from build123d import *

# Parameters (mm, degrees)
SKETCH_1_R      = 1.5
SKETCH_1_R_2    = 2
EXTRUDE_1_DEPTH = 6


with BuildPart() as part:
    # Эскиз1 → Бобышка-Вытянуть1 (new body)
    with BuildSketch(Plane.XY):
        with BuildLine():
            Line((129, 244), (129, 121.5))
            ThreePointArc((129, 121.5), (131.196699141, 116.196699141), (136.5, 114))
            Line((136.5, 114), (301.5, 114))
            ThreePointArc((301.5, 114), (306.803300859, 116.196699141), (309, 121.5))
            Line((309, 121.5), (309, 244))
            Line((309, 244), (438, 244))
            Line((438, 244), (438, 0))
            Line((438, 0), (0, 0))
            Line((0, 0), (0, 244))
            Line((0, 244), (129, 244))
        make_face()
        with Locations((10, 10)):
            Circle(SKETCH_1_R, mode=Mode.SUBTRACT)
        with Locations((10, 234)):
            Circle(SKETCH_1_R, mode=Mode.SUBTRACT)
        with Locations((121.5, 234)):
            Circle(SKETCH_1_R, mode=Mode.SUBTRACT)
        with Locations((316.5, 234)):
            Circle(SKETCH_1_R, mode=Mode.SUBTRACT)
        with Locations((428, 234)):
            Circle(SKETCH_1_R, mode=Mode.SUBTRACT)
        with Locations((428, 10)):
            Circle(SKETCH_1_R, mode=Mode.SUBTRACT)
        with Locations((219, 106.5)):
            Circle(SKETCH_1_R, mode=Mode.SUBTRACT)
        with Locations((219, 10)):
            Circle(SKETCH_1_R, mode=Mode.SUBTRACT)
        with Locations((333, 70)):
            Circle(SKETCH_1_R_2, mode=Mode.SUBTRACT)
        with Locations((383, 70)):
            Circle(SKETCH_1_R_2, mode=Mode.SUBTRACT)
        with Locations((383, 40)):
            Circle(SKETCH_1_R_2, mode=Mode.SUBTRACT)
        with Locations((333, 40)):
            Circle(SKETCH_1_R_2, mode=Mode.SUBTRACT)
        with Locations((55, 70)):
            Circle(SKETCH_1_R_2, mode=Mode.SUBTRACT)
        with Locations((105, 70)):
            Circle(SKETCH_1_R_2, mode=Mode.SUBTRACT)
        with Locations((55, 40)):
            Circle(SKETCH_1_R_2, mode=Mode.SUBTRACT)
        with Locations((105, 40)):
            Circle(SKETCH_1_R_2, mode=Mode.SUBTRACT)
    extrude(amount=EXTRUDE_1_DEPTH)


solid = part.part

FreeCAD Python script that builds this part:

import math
import FreeCAD as App
import Part
import Sketcher
from FreeCAD import Vector

doc = App.newDocument("Part")
body = doc.addObject("PartDesign::Body", "Body")

# Sketch on XY plane
sketch1 = body.newObject("Sketcher::SketchObject", "Sketch")
sketch1.AttachmentSupport = (doc.getObject("XY_Plane"), [""])
sketch1.MapMode = "FlatFace"
sketch1.addGeometry(Part.LineSegment(Vector(129, 121.5, 0), Vector(129, 244, 0)), False)
sketch1.addGeometry(Part.LineSegment(Vector(129, 244, 0), Vector(0, 244, 0)), False)
sketch1.addGeometry(Part.LineSegment(Vector(0, 244, 0), Vector(0, 0, 0)), False)
sketch1.addGeometry(Part.LineSegment(Vector(0, 0, 0), Vector(438, 0, 0)), False)
sketch1.addGeometry(Part.LineSegment(Vector(438, 0, 0), Vector(438, 244, 0)), False)
sketch1.addGeometry(Part.LineSegment(Vector(438, 244, 0), Vector(309, 244, 0)), False)
sketch1.addGeometry(Part.LineSegment(Vector(309, 244, 0), Vector(309, 121.5, 0)), False)
sketch1.addGeometry(Part.ArcOfCircle(Part.Circle(Vector(301.5, 121.5, 0), Vector(0, 0, 1), 7.5), math.radians(-90), math.radians(0)), False)
sketch1.addGeometry(Part.LineSegment(Vector(301.5, 114, 0), Vector(136.5, 114, 0)), False)
sketch1.addGeometry(Part.ArcOfCircle(Part.Circle(Vector(136.5, 121.5, 0), Vector(0, 0, 1), 7.5), math.radians(180), math.radians(270)), False)
sketch1.addGeometry(Part.Circle(Vector(428, 10, 0), Vector(0, 0, 1), 1.5), False)
sketch1.addGeometry(Part.Circle(Vector(383, 40, 0), Vector(0, 0, 1), 2), False)
sketch1.addGeometry(Part.Circle(Vector(333, 40, 0), Vector(0, 0, 1), 2), False)
sketch1.addGeometry(Part.Circle(Vector(383, 70, 0), Vector(0, 0, 1), 2), False)
sketch1.addGeometry(Part.Circle(Vector(333, 70, 0), Vector(0, 0, 1), 2), False)
sketch1.addGeometry(Part.Circle(Vector(219, 10, 0), Vector(0, 0, 1), 1.5), False)
sketch1.addGeometry(Part.Circle(Vector(10, 10, 0), Vector(0, 0, 1), 1.5), False)
sketch1.addGeometry(Part.Circle(Vector(105, 40, 0), Vector(0, 0, 1), 2), False)
sketch1.addGeometry(Part.Circle(Vector(55, 40, 0), Vector(0, 0, 1), 2), False)
sketch1.addGeometry(Part.Circle(Vector(219, 106.5, 0), Vector(0, 0, 1), 1.5), False)
sketch1.addGeometry(Part.Circle(Vector(105, 70, 0), Vector(0, 0, 1), 2), False)
sketch1.addGeometry(Part.Circle(Vector(55, 70, 0), Vector(0, 0, 1), 2), False)
sketch1.addGeometry(Part.Circle(Vector(428, 234, 0), Vector(0, 0, 1), 1.5), False)
sketch1.addGeometry(Part.Circle(Vector(316.5, 234, 0), Vector(0, 0, 1), 1.5), False)
sketch1.addGeometry(Part.Circle(Vector(121.5, 234, 0), Vector(0, 0, 1), 1.5), False)
sketch1.addGeometry(Part.Circle(Vector(10, 234, 0), Vector(0, 0, 1), 1.5), False)
sketch1.addConstraint(Sketcher.Constraint("Coincident", 0, 2, 1, 1))
sketch1.addConstraint(Sketcher.Constraint("Coincident", 1, 2, 2, 1))
sketch1.addConstraint(Sketcher.Constraint("Coincident", 2, 2, 3, 1))
sketch1.addConstraint(Sketcher.Constraint("Coincident", 3, 2, 4, 1))
sketch1.addConstraint(Sketcher.Constraint("Coincident", 4, 2, 5, 1))
sketch1.addConstraint(Sketcher.Constraint("Coincident", 5, 2, 6, 1))
sketch1.addConstraint(Sketcher.Constraint("Tangent", 6, 2, 7, 2))
sketch1.addConstraint(Sketcher.Constraint("Tangent", 7, 1, 8, 1))
sketch1.addConstraint(Sketcher.Constraint("Tangent", 8, 2, 9, 2))
sketch1.addConstraint(Sketcher.Constraint("Tangent", 9, 1, 0, 1))
sketch1.addConstraint(Sketcher.Constraint("Vertical", 0))
sketch1.addConstraint(Sketcher.Constraint("Horizontal", 1))
sketch1.addConstraint(Sketcher.Constraint("Vertical", 2))
sketch1.addConstraint(Sketcher.Constraint("Horizontal", 3))
sketch1.addConstraint(Sketcher.Constraint("Vertical", 4))
sketch1.addConstraint(Sketcher.Constraint("Horizontal", 5))
sketch1.addConstraint(Sketcher.Constraint("Vertical", 6))
sketch1.addConstraint(Sketcher.Constraint("Horizontal", 8))
sketch1.addConstraint(Sketcher.Constraint("Coincident", 2, 2, -1, 1))
sketch1.addConstraint(Sketcher.Constraint("Equal", 7, 9))
sketch1.addConstraint(Sketcher.Constraint("Equal", 11, 12))
sketch1.addConstraint(Sketcher.Constraint("Equal", 12, 13))
sketch1.addConstraint(Sketcher.Constraint("Equal", 13, 14))
sketch1.addConstraint(Sketcher.Constraint("Equal", 10, 15))
sketch1.addConstraint(Sketcher.Constraint("Equal", 15, 16))
sketch1.addConstraint(Sketcher.Constraint("Equal", 14, 17))
sketch1.addConstraint(Sketcher.Constraint("Equal", 17, 18))
sketch1.addConstraint(Sketcher.Constraint("Equal", 16, 19))
sketch1.addConstraint(Sketcher.Constraint("Equal", 18, 20))
sketch1.addConstraint(Sketcher.Constraint("Equal", 20, 21))
sketch1.addConstraint(Sketcher.Constraint("Equal", 19, 22))
sketch1.addConstraint(Sketcher.Constraint("Equal", 22, 23))
sketch1.addConstraint(Sketcher.Constraint("Equal", 23, 24))
sketch1.addConstraint(Sketcher.Constraint("Equal", 24, 25))
sketch1.addConstraint(Sketcher.Constraint("Horizontal", 11, 3, 12, 3))
sketch1.addConstraint(Sketcher.Constraint("Horizontal", 13, 3, 14, 3))
sketch1.addConstraint(Sketcher.Constraint("Horizontal", 10, 3, 15, 3))
sketch1.addConstraint(Sketcher.Constraint("Horizontal", 15, 3, 16, 3))
sketch1.addConstraint(Sketcher.Constraint("Horizontal", 12, 3, 17, 3))
sketch1.addConstraint(Sketcher.Constraint("Horizontal", 17, 3, 18, 3))
sketch1.addConstraint(Sketcher.Constraint("Horizontal", 14, 3, 20, 3))
sketch1.addConstraint(Sketcher.Constraint("Horizontal", 20, 3, 21, 3))
sketch1.addConstraint(Sketcher.Constraint("Horizontal", 22, 3, 23, 3))
sketch1.addConstraint(Sketcher.Constraint("Horizontal", 23, 3, 24, 3))
sketch1.addConstraint(Sketcher.Constraint("Horizontal", 24, 3, 25, 3))
sketch1.addConstraint(Sketcher.Constraint("Horizontal", 1, 2, 4, 2))
sketch1.addConstraint(Sketcher.Constraint("Vertical", 11, 3, 13, 3))
sketch1.addConstraint(Sketcher.Constraint("Vertical", 12, 3, 14, 3))
sketch1.addConstraint(Sketcher.Constraint("Vertical", 15, 3, 19, 3))
sketch1.addConstraint(Sketcher.Constraint("Vertical", 17, 3, 20, 3))
sketch1.addConstraint(Sketcher.Constraint("Vertical", 18, 3, 21, 3))
sketch1.addConstraint(Sketcher.Constraint("Vertical", 10, 3, 22, 3))
sketch1.addConstraint(Sketcher.Constraint("Vertical", 16, 3, 25, 3))
sketch1.addConstraint(Sketcher.Constraint("Equal", 1, 5))
sketch1.addConstraint(Sketcher.Constraint("Diameter", 10, 3.0))
sketch1.addConstraint(Sketcher.Constraint("Diameter", 11, 4.0))
sketch1.addConstraint(Sketcher.Constraint("Radius", 7, 7.5))
sketch1.addConstraint(Sketcher.Constraint("DistanceX", 1, 2, 1, 1, 129.0))
sketch1.addConstraint(Sketcher.Constraint("DistanceX", 3, 1, 3, 2, 438.0))
sketch1.addConstraint(Sketcher.Constraint("DistanceY", 2, 2, 2, 1, 244.0))
sketch1.addConstraint(Sketcher.Constraint("DistanceY", 0, 1, 0, 2, 122.5))
sketch1.addConstraint(Sketcher.Constraint("DistanceX", -1, 1, 10, 3, 428.0))
sketch1.addConstraint(Sketcher.Constraint("DistanceY", -1, 1, 10, 3, 10.0))
sketch1.addConstraint(Sketcher.Constraint("DistanceX", -1, 1, 11, 3, 383.0))
sketch1.addConstraint(Sketcher.Constraint("DistanceY", -1, 1, 11, 3, 40.0))
sketch1.addConstraint(Sketcher.Constraint("DistanceX", -1, 1, 12, 3, 333.0))
sketch1.addConstraint(Sketcher.Constraint("DistanceY", -1, 1, 13, 3, 70.0))
sketch1.addConstraint(Sketcher.Constraint("DistanceX", -1, 1, 15, 3, 219.0))
sketch1.addConstraint(Sketcher.Constraint("DistanceX", -1, 1, 16, 3, 10.0))
sketch1.addConstraint(Sketcher.Constraint("DistanceX", -1, 1, 17, 3, 105.0))
sketch1.addConstraint(Sketcher.Constraint("DistanceX", -1, 1, 18, 3, 55.0))
sketch1.addConstraint(Sketcher.Constraint("DistanceY", -1, 1, 22, 3, 234.0))
sketch1.addConstraint(Sketcher.Constraint("DistanceY", 19, 3, 7, 3, 15.0))
sketch1.addConstraint(Sketcher.Constraint("DistanceX", 7, 3, 23, 3, 15.0))
sketch1.addConstraint(Sketcher.Constraint("DistanceX", 24, 3, 9, 3, 15.0))
pad1 = body.newObject("PartDesign::Pad", "Pad")
pad1.Profile = sketch1
pad1.Length = 6

doc.recompute()
